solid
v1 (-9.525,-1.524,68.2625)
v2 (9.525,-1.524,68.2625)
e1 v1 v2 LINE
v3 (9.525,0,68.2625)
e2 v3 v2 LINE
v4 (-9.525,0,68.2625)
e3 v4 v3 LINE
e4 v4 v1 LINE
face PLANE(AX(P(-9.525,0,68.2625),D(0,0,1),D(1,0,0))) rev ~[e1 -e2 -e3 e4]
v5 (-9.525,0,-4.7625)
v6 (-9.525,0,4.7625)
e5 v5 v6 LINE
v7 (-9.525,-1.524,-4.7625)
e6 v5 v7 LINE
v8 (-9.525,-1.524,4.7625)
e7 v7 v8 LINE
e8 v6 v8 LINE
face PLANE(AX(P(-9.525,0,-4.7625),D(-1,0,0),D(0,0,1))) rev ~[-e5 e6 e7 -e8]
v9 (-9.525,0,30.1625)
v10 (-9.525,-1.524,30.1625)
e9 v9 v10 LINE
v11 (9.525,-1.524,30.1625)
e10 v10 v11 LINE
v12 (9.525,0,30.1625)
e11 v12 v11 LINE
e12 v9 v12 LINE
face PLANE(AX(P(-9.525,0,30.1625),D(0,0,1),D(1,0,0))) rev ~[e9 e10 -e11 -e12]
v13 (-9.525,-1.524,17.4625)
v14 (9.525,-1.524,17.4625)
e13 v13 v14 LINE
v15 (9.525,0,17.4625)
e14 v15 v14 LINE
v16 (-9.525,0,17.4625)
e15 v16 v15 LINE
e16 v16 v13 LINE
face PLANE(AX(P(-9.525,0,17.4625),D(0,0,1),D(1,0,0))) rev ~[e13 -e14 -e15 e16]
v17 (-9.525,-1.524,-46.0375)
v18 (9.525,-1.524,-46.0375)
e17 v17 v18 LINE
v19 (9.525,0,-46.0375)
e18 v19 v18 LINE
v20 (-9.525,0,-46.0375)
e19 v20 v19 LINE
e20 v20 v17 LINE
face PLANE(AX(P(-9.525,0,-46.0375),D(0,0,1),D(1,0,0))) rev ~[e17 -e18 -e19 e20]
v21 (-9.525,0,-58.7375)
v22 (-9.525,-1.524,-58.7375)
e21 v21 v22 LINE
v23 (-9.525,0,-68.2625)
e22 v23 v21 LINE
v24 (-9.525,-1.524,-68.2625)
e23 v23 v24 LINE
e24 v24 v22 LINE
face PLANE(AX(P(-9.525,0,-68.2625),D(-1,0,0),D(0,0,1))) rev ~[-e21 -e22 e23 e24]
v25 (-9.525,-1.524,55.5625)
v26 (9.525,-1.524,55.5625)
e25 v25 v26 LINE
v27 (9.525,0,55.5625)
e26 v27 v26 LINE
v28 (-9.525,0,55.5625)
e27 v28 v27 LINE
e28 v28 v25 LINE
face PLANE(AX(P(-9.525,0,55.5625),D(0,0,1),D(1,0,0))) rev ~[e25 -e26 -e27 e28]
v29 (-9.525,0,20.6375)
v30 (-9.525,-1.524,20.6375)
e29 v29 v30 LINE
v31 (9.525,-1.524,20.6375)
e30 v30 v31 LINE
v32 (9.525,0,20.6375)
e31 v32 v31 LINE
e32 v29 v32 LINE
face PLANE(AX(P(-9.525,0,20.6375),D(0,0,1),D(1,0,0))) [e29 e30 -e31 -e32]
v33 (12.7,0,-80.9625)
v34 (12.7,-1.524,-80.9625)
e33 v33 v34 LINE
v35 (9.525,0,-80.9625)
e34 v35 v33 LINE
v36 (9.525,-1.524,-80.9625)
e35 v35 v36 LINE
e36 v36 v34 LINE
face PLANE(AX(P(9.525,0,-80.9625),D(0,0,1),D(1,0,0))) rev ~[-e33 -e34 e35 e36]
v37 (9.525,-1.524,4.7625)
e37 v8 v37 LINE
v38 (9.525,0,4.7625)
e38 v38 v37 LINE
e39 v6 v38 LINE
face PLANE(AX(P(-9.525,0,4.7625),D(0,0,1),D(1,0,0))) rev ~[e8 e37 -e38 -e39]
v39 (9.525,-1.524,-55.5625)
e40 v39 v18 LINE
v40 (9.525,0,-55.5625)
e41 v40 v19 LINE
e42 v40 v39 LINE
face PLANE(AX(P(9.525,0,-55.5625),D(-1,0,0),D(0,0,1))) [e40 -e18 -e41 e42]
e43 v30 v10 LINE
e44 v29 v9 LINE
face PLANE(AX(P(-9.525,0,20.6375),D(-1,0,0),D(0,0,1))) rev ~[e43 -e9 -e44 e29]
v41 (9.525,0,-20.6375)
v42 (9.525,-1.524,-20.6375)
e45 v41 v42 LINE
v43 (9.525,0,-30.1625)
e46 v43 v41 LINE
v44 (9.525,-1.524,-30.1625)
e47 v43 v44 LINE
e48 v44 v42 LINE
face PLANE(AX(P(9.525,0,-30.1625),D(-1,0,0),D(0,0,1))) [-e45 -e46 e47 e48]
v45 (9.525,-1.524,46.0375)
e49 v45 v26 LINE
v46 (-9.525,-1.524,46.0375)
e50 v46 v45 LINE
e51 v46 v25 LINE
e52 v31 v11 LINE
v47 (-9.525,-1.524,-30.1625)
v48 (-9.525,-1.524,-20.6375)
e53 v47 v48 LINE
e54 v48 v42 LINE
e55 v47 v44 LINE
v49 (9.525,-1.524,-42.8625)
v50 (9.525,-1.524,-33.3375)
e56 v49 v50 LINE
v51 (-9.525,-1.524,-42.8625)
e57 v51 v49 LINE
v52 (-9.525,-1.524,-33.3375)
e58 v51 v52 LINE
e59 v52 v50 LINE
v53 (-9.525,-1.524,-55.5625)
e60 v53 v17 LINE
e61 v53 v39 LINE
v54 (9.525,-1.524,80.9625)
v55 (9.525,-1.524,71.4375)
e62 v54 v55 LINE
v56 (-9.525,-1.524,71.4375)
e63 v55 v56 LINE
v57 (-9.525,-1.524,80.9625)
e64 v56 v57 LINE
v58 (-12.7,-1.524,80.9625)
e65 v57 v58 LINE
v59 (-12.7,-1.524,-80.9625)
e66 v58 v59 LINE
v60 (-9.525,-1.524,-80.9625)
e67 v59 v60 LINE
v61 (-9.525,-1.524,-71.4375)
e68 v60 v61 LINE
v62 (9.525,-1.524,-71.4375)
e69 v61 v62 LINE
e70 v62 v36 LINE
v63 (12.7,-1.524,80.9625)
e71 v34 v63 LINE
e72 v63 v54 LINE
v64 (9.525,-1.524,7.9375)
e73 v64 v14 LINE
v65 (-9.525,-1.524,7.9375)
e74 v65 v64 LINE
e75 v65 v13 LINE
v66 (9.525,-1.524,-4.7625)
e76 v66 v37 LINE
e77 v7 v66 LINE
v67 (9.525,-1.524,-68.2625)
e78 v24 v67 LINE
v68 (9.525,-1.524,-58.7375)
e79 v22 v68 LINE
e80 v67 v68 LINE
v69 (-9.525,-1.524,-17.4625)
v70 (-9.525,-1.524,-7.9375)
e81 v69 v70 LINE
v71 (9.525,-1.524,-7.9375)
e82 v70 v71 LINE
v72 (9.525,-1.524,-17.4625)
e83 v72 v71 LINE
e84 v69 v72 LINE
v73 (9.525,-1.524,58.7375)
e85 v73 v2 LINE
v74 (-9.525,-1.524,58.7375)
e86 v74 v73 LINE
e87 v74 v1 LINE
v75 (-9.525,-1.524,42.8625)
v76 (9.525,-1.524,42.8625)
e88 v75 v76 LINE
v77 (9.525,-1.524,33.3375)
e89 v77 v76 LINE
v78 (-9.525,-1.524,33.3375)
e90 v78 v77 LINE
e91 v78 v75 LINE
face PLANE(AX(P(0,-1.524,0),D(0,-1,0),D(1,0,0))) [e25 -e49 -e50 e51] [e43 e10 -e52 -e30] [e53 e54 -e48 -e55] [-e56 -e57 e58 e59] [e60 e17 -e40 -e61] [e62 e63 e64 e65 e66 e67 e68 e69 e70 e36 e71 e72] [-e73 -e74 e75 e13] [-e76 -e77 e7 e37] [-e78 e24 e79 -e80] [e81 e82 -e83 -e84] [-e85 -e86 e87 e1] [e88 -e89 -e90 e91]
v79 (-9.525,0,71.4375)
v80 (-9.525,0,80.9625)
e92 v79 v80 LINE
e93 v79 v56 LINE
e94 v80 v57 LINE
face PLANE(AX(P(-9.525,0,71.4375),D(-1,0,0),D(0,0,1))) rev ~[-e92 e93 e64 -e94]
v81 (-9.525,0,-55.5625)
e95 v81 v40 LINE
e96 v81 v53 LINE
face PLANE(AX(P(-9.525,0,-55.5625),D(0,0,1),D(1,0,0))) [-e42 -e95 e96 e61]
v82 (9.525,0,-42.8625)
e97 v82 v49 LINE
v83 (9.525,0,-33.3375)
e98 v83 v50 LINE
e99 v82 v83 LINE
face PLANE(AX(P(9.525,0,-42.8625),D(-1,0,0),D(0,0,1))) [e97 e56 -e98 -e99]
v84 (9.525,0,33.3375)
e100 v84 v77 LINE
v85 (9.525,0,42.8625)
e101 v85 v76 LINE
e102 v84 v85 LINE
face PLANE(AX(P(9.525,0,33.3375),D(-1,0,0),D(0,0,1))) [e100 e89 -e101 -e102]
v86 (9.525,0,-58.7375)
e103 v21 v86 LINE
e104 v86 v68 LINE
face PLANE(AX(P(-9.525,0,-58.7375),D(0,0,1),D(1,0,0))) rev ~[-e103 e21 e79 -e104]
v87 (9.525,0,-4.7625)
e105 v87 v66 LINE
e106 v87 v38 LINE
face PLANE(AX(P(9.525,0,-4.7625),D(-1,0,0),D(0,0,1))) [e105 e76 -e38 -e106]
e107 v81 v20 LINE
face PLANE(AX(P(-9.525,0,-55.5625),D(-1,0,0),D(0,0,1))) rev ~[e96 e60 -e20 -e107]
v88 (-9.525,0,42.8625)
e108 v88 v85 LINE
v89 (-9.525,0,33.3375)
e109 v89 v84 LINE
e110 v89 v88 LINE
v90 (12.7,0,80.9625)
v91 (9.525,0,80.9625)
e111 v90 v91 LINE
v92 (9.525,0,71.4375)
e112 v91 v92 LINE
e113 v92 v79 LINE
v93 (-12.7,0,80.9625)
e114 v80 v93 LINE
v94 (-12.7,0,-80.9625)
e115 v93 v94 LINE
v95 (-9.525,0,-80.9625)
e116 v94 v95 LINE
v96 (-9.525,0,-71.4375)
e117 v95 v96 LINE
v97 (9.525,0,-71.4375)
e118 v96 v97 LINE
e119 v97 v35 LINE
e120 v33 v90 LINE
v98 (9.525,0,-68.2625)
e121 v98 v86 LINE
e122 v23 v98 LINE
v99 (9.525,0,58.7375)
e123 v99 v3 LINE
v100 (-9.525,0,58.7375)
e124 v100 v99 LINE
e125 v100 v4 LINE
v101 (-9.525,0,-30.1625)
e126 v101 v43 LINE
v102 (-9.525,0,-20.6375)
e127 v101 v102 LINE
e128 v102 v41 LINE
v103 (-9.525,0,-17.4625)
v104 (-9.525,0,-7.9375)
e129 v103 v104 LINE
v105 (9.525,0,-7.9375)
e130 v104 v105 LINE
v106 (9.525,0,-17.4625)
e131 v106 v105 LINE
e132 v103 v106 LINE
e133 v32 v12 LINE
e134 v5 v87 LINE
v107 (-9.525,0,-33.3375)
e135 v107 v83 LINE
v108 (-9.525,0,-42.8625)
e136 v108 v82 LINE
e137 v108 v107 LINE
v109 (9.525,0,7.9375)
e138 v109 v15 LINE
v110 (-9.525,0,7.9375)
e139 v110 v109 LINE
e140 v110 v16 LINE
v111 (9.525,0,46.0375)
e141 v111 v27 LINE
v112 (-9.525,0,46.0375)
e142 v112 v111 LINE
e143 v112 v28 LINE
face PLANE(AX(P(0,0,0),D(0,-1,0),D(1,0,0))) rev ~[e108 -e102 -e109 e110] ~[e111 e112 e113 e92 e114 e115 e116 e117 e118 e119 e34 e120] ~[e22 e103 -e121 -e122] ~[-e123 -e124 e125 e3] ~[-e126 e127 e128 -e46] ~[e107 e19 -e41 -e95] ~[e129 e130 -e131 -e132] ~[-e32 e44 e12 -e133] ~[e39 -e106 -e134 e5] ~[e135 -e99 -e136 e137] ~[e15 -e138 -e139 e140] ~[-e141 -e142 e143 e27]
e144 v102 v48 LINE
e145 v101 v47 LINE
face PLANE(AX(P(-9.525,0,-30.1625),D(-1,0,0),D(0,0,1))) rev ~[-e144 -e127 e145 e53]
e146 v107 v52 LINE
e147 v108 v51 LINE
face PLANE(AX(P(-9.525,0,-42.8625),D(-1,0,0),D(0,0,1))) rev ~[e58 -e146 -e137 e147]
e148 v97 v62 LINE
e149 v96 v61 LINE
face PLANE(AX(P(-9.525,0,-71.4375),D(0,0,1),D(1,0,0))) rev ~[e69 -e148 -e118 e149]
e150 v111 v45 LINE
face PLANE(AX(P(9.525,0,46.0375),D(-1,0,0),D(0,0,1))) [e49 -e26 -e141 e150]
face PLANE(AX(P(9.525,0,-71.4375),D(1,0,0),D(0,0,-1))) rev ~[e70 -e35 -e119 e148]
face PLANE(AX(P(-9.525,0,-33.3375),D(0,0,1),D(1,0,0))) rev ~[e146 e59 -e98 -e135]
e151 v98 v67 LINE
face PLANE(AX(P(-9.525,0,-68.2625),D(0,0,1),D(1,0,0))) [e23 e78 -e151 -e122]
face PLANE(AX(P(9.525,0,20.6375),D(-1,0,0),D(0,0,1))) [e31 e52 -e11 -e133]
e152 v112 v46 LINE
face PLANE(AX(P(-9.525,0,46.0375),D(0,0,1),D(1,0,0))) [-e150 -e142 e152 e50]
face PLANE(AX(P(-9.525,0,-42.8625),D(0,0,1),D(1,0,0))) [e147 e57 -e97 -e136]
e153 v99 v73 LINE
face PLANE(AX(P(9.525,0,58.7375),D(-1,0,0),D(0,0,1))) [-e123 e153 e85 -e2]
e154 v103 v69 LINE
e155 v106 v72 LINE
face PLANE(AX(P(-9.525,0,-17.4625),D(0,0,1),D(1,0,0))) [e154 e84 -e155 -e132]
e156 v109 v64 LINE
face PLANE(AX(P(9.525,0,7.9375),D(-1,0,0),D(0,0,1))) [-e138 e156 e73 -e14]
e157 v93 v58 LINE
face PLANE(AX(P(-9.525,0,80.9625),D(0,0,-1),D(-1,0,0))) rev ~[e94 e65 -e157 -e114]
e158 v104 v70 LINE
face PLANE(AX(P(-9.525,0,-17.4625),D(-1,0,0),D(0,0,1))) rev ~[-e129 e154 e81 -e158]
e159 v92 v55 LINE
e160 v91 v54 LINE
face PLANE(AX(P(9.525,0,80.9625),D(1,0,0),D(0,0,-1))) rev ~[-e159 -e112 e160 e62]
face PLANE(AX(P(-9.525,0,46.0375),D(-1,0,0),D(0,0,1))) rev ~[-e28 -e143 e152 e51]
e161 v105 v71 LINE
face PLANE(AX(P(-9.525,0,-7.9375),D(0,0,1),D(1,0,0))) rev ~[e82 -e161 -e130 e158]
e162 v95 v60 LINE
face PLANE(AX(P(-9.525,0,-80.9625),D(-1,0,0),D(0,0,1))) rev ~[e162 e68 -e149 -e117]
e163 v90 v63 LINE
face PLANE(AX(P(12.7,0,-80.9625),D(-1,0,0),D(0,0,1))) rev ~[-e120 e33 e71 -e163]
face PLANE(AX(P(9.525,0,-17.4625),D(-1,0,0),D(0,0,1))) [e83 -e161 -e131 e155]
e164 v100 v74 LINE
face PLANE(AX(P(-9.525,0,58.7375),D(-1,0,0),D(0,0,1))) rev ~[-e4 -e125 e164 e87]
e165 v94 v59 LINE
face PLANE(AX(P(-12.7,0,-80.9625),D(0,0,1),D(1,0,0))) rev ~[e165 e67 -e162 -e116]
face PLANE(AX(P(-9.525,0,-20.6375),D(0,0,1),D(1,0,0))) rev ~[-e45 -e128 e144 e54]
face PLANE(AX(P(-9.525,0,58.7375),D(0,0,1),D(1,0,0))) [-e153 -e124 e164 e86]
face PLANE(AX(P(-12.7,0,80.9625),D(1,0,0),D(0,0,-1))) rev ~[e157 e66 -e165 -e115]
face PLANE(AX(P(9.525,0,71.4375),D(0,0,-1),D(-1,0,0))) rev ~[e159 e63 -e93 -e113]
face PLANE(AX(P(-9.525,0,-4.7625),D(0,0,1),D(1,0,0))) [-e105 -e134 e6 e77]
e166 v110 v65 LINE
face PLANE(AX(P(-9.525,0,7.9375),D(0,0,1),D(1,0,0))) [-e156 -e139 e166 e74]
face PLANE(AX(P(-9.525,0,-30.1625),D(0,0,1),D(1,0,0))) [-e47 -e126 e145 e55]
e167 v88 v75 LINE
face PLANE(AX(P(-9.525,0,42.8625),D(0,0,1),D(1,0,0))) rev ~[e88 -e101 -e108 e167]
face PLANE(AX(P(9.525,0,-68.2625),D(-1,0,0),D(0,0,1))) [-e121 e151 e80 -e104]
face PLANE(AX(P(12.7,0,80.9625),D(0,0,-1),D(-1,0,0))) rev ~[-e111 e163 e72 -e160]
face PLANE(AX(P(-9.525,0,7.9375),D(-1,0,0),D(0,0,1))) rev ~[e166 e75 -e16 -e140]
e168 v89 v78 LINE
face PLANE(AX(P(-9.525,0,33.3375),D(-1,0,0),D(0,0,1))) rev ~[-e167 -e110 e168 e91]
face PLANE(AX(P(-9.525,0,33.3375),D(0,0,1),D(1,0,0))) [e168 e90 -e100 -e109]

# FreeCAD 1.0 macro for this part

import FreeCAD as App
import Part
import Sketcher

V = App.Vector
Q = App.Units.Quantity

doc = App.newDocument("Part")
body = doc.addObject("PartDesign::Body", "Body")

sketch1 = body.newObject("Sketcher::SketchObject", "Sketch")
sketch1.AttachmentSupport = (doc.getObject("XZ_Plane"), [""])
sketch1.MapMode = "FlatFace"
sketch1.addGeometry([
    Part.LineSegment(V(-9.5, 81, 0), V(-12.7, 81, 0)),
    Part.LineSegment(V(-12.7, 81, 0), V(-12.7, -81, 0)),
    Part.LineSegment(V(-12.7, -81, 0), V(-9.5, -81, 0)),
    Part.LineSegment(V(-9.5, -81, 0), V(-9.5, -71.4, 0)),
    Part.LineSegment(V(-9.5, -71.4, 0), V(9.5, -71.4, 0)),
    Part.LineSegment(V(9.5, -71.4, 0), V(9.5, -81, 0)),
    Part.LineSegment(V(9.5, -81, 0), V(12.7, -81, 0)),
    Part.LineSegment(V(12.7, -81, 0), V(12.7, 81, 0)),
    Part.LineSegment(V(12.7, 81, 0), V(9.5, 81, 0)),
    Part.LineSegment(V(9.5, 81, 0), V(9.5, 71.4, 0)),
    Part.LineSegment(V(9.5, 71.4, 0), V(-9.5, 71.4, 0)),
    Part.LineSegment(V(-9.5, 71.4, 0), V(-9.5, 81, 0)),
    Part.LineSegment(V(9.5, -68.3, 0), V(-9.5, -68.3, 0)),
    Part.LineSegment(V(-9.5, -68.3, 0), V(-9.5, -58.7, 0)),
    Part.LineSegment(V(-9.5, -58.7, 0), V(9.5, -58.7, 0)),
    Part.LineSegment(V(9.5, -58.7, 0), V(9.5, -68.3, 0)),
    Part.LineSegment(V(9.5, -55.6, 0), V(-9.5, -55.6, 0)),
    Part.LineSegment(V(-9.5, -55.6, 0), V(-9.5, -46, 0)),
    Part.LineSegment(V(-9.5, -46, 0), V(9.5, -46, 0)),
    Part.LineSegment(V(9.5, -46, 0), V(9.5, -55.6, 0)),
    Part.LineSegment(V(9.5, -42.9, 0), V(-9.5, -42.9, 0)),
    Part.LineSegment(V(-9.5, -42.9, 0), V(-9.5, -33.3, 0)),
    Part.LineSegment(V(-9.5, -33.3, 0), V(9.5, -33.3, 0)),
    Part.LineSegment(V(9.5, -33.3, 0), V(9.5, -42.9, 0)),
    Part.LineSegment(V(9.5, -30.2, 0), V(-9.5, -30.2, 0)),
    Part.LineSegment(V(-9.5, -30.2, 0), V(-9.5, -20.6, 0)),
    Part.LineSegment(V(-9.5, -20.6, 0), V(9.5, -20.6, 0)),
    Part.LineSegment(V(9.5, -20.6, 0), V(9.5, -30.2, 0)),
    Part.LineSegment(V(9.5, -17.5, 0), V(-9.5, -17.5, 0)),
    Part.LineSegment(V(-9.5, -17.5, 0), V(-9.5, -7.9, 0)),
    Part.LineSegment(V(-9.5, -7.9, 0), V(9.5, -7.9, 0)),
    Part.LineSegment(V(9.5, -7.9, 0), V(9.5, -17.5, 0)),
    Part.LineSegment(V(9.5, -4.8, 0), V(-9.5, -4.8, 0)),
    Part.LineSegment(V(-9.5, -4.8, 0), V(-9.5, 4.8, 0)),
    Part.LineSegment(V(-9.5, 4.8, 0), V(9.5, 4.8, 0)),
    Part.LineSegment(V(9.5, 4.8, 0), V(9.5, -4.8, 0)),
    Part.LineSegment(V(9.5, 7.9, 0), V(-9.5, 7.9, 0)),
    Part.LineSegment(V(-9.5, 7.9, 0), V(-9.5, 17.5, 0)),
    Part.LineSegment(V(-9.5, 17.5, 0), V(9.5, 17.5, 0)),
    Part.LineSegment(V(9.5, 17.5, 0), V(9.5, 7.9, 0)),
    Part.LineSegment(V(9.5, 20.6, 0), V(-9.5, 20.6, 0)),
    Part.LineSegment(V(-9.5, 20.6, 0), V(-9.5, 30.2, 0)),
    Part.LineSegment(V(-9.5, 30.2, 0), V(9.5, 30.2, 0)),
    Part.LineSegment(V(9.5, 30.2, 0), V(9.5, 20.6, 0)),
    Part.LineSegment(V(9.5, 33.3, 0), V(-9.5, 33.3, 0)),
    Part.LineSegment(V(-9.5, 33.3, 0), V(-9.5, 42.9, 0)),
    Part.LineSegment(V(-9.5, 42.9, 0), V(9.5, 42.9, 0)),
    Part.LineSegment(V(9.5, 42.9, 0), V(9.5, 33.3, 0)),
    Part.LineSegment(V(9.5, 46, 0), V(-9.5, 46, 0)),
    Part.LineSegment(V(-9.5, 46, 0), V(-9.5, 55.6, 0)),
    Part.LineSegment(V(-9.5, 55.6, 0), V(9.5, 55.6, 0)),
    Part.LineSegment(V(9.5, 55.6, 0), V(9.5, 46, 0)),
    Part.LineSegment(V(9.5, 58.7, 0), V(-9.5, 58.7, 0)),
    Part.LineSegment(V(-9.5, 58.7, 0), V(-9.5, 68.3, 0)),
    Part.LineSegment(V(-9.5, 68.3, 0), V(9.5, 68.3, 0)),
    Part.LineSegment(V(9.5, 68.3, 0), V(9.5, 58.7, 0)),
], False)
sketch1.addConstraint([
    Sketcher.Constraint("Coincident", 0, 2, 1, 1),
    Sketcher.Constraint("Coincident", 1, 2, 2, 1),
    Sketcher.Constraint("Coincident", 2, 2, 3, 1),
    Sketcher.Constraint("Coincident", 3, 2, 4, 1),
    Sketcher.Constraint("Coincident", 4, 2, 5, 1),
    Sketcher.Constraint("Coincident", 5, 2, 6, 1),
    Sketcher.Constraint("Coincident", 6, 2, 7, 1),
    Sketcher.Constraint("Coincident", 7, 2, 8, 1),
    Sketcher.Constraint("Coincident", 8, 2, 9, 1),
    Sketcher.Constraint("Coincident", 9, 2, 10, 1),
    Sketcher.Constraint("Coincident", 10, 2, 11, 1),
    Sketcher.Constraint("Coincident", 11, 2, 0, 1),
    Sketcher.Constraint("Coincident", 12, 2, 13, 1),
    Sketcher.Constraint("Coincident", 13, 2, 14, 1),
    Sketcher.Constraint("Coincident", 14, 2, 15, 1),
    Sketcher.Constraint("Coincident", 15, 2, 12, 1),
    Sketcher.Constraint("Coincident", 16, 2, 17, 1),
    Sketcher.Constraint("Coincident", 17, 2, 18, 1),
    Sketcher.Constraint("Coincident", 18, 2, 19, 1),
    Sketcher.Constraint("Coincident", 19, 2, 16, 1),
    Sketcher.Constraint("Coincident", 20, 2, 21, 1),
    Sketcher.Constraint("Coincident", 21, 2, 22, 1),
    Sketcher.Constraint("Coincident", 22, 2, 23, 1),
    Sketcher.Constraint("Coincident", 23, 2, 20, 1),
    Sketcher.Constraint("Coincident", 24, 2, 25, 1),
    Sketcher.Constraint("Coincident", 25, 2, 26, 1),
    Sketcher.Constraint("Coincident", 26, 2, 27, 1),
    Sketcher.Constraint("Coincident", 27, 2, 24, 1),
    Sketcher.Constraint("Coincident", 28, 2, 29, 1),
    Sketcher.Constraint("Coincident", 29, 2, 30, 1),
    Sketcher.Constraint("Coincident", 30, 2, 31, 1),
    Sketcher.Constraint("Coincident", 31, 2, 28, 1),
    Sketcher.Constraint("Coincident", 32, 2, 33, 1),
    Sketcher.Constraint("Coincident", 33, 2, 34, 1),
    Sketcher.Constraint("Coincident", 34, 2, 35, 1),
    Sketcher.Constraint("Coincident", 35, 2, 32, 1),
    Sketcher.Constraint("Coincident", 36, 2, 37, 1),
    Sketcher.Constraint("Coincident", 37, 2, 38, 1),
    Sketcher.Constraint("Coincident", 38, 2, 39, 1),
    Sketcher.Constraint("Coincident", 39, 2, 36, 1),
    Sketcher.Constraint("Coincident", 40, 2, 41, 1),
    Sketcher.Constraint("Coincident", 41, 2, 42, 1),
    Sketcher.Constraint("Coincident", 42, 2, 43, 1),
    Sketcher.Constraint("Coincident", 43, 2, 40, 1),
    Sketcher.Constraint("Coincident", 44, 2, 45, 1),
    Sketcher.Constraint("Coincident", 45, 2, 46, 1),
    Sketcher.Constraint("Coincident", 46, 2, 47, 1),
    Sketcher.Constraint("Coincident", 47, 2, 44, 1),
    Sketcher.Constraint("Coincident", 48, 2, 49, 1),
    Sketcher.Constraint("Coincident", 49, 2, 50, 1),
    Sketcher.Constraint("Coincident", 50, 2, 51, 1),
    Sketcher.Constraint("Coincident", 51, 2, 48, 1),
    Sketcher.Constraint("Coincident", 52, 2, 53, 1),
    Sketcher.Constraint("Coincident", 53, 2, 54, 1),
    Sketcher.Constraint("Coincident", 54, 2, 55, 1),
    Sketcher.Constraint("Coincident", 55, 2, 52, 1),
    Sketcher.Constraint("Horizontal", 0),
    Sketcher.Constraint("Vertical", 1),
    Sketcher.Constraint("Horizontal", 2),
    Sketcher.Constraint("Vertical", 3),
    Sketcher.Constraint("Horizontal", 4),
    Sketcher.Constraint("Vertical", 5),
    Sketcher.Constraint("Horizontal", 6),
    Sketcher.Constraint("Vertical", 7),
    Sketcher.Constraint("Horizontal", 8),
    Sketcher.Constraint("Vertical", 9),
    Sketcher.Constraint("Horizontal", 10),
    Sketcher.Constraint("Vertical", 11),
    Sketcher.Constraint("Horizontal", 12),
    Sketcher.Constraint("Vertical", 13),
    Sketcher.Constraint("Horizontal", 14),
    Sketcher.Constraint("Vertical", 15),
    Sketcher.Constraint("Horizontal", 16),
    Sketcher.Constraint("Vertical", 17),
    Sketcher.Constraint("Horizontal", 18),
    Sketcher.Constraint("Vertical", 19),
    Sketcher.Constraint("Horizontal", 20),
    Sketcher.Constraint("Vertical", 21),
    Sketcher.Constraint("Horizontal", 22),
    Sketcher.Constraint("Vertical", 23),
    Sketcher.Constraint("Horizontal", 24),
    Sketcher.Constraint("Vertical", 25),
    Sketcher.Constraint("Horizontal", 26),
    Sketcher.Constraint("Vertical", 27),
    Sketcher.Constraint("Horizontal", 28),
    Sketcher.Constraint("Vertical", 29),
    Sketcher.Constraint("Horizontal", 30),
    Sketcher.Constraint("Vertical", 31),
    Sketcher.Constraint("Horizontal", 32),
    Sketcher.Constraint("Vertical", 33),
    Sketcher.Constraint("Horizontal", 34),
    Sketcher.Constraint("Vertical", 35),
    Sketcher.Constraint("Horizontal", 36),
    Sketcher.Constraint("Vertical", 37),
    Sketcher.Constraint("Horizontal", 38),
    Sketcher.Constraint("Vertical", 39),
    Sketcher.Constraint("Horizontal", 40),
    Sketcher.Constraint("Vertical", 41),
    Sketcher.Constraint("Horizontal", 42),
    Sketcher.Constraint("Vertical", 43),
    Sketcher.Constraint("Horizontal", 44),
    Sketcher.Constraint("Vertical", 45),
    Sketcher.Constraint("Horizontal", 46),
    Sketcher.Constraint("Vertical", 47),
    Sketcher.Constraint("Horizontal", 48),
    Sketcher.Constraint("Vertical", 49),
    Sketcher.Constraint("Horizontal", 50),
    Sketcher.Constraint("Vertical", 51),
    Sketcher.Constraint("Horizontal", 52),
    Sketcher.Constraint("Vertical", 53),
    Sketcher.Constraint("Horizontal", 54),
    Sketcher.Constraint("Vertical", 55),
    Sketcher.Constraint("Symmetric", 0, 2, 6, 2, -1, 1),
    Sketcher.Constraint("Symmetric", 2, 2, 8, 2, -1, 1),
    Sketcher.Constraint("Symmetric", 4, 2, 10, 2, -1, 1),
    Sketcher.Constraint("Symmetric", 32, 2, 34, 2, -1, 1),
    Sketcher.Constraint("Symmetric", 30, 2, 36, 2, -1, 1),
    Sketcher.Constraint("Symmetric", 28, 2, 38, 2, -1, 1),
    Sketcher.Constraint("Symmetric", 26, 2, 40, 2, -1, 1),
    Sketcher.Constraint("Symmetric", 24, 2, 42, 2, -1, 1),
    Sketcher.Constraint("Symmetric", 22, 2, 44, 2, -1, 1),
    Sketcher.Constraint("Symmetric", 20, 2, 46, 2, -1, 1),
    Sketcher.Constraint("Symmetric", 18, 2, 48, 2, -1, 1),
    Sketcher.Constraint("Symmetric", 16, 2, 50, 2, -1, 1),
    Sketcher.Constraint("Symmetric", 14, 2, 52, 2, -1, 1),
    Sketcher.Constraint("Symmetric", 12, 2, 54, 2, -1, 1),
    Sketcher.Constraint("Symmetric", 2, 2, 5, 2, -2),
    Sketcher.Constraint("Vertical", 11, 2, 12, 2),
    Sketcher.Constraint("Vertical", 9, 2, 14, 2),
    Sketcher.Constraint("Vertical", 13, 2, 16, 2),
    Sketcher.Constraint("Vertical", 15, 2, 18, 2),
    Sketcher.Constraint("Vertical", 17, 2, 20, 2),
    Sketcher.Constraint("Vertical", 19, 2, 22, 2),
    Sketcher.Constraint("Vertical", 21, 2, 24, 2),
    Sketcher.Constraint("Vertical", 23, 2, 26, 2),
    Sketcher.Constraint("Vertical", 25, 2, 28, 2),
    Sketcher.Constraint("Vertical", 27, 2, 30, 2),
    Sketcher.Constraint("Vertical", 29, 2, 32, 2),
    Sketcher.Constraint("Equal", 11, 13),
    Sketcher.Constraint("Equal", 15, 17),
    Sketcher.Constraint("Equal", 19, 21),
    Sketcher.Constraint("Equal", 23, 25),
    Sketcher.Constraint("Equal", 27, 29),
    Sketcher.Constraint("Equal", 31, 33),
    Sketcher.Constraint("DistanceY", 3, 2, 0, 2, Q("6 in")),
    Sketcher.Constraint("DistanceX", 1, 2, 6, 2, Q("1 in")),
    Sketcher.Constraint("DistanceY", 3, 2, 17, 2, Q("1 in")),
    Sketcher.Constraint("DistanceY", 13, 2, 21, 2, Q("1 in")),
    Sketcher.Constraint("DistanceY", 17, 2, 25, 2, Q("1 in")),
    Sketcher.Constraint("DistanceY", 21, 2, 29, 2, Q("1 in")),
    Sketcher.Constraint("DistanceY", 29, 2, 37, 2, Q("1 in")),
    Sketcher.Constraint("DistanceX", 4, 1, 4, 2, Q("0.75 in")),
    Sketcher.Constraint("DistanceY", 1, 2, 1, 1, Q("6.375 in")),
])
pad1 = body.newObject("PartDesign::Pad", "Pad")
pad1.Profile = sketch1
pad1.Length = Q("0.06 in")

doc.recompute()
